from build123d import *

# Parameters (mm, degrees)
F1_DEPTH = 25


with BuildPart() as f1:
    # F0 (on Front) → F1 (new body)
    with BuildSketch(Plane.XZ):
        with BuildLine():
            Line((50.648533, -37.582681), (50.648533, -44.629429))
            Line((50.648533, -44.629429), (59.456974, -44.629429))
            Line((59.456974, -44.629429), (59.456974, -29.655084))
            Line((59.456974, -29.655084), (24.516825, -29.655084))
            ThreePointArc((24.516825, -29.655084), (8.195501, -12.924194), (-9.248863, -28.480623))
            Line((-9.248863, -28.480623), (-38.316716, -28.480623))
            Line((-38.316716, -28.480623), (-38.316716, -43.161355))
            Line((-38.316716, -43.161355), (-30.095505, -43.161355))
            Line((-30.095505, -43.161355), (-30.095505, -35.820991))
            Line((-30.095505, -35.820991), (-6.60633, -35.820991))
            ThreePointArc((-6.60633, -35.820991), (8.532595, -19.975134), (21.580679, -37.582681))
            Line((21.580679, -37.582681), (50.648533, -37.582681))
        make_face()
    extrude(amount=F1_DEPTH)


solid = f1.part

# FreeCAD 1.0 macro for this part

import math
import FreeCAD as App
import Part
import Sketcher

V = App.Vector

doc = App.newDocument("Part")
body = doc.addObject("PartDesign::Body", "Body")

# Sketch on XZ plane
sketch1 = body.newObject("Sketcher::SketchObject", "Sketch")
sketch1.AttachmentSupport = (doc.getObject("XZ_Plane"), [""])
sketch1.MapMode = "FlatFace"
sketch1.addGeometry(Part.LineSegment(V(51, -38, 0), V(51, -45, 0)), False)
sketch1.addGeometry(Part.LineSegment(V(51, -45, 0), V(59, -45, 0)), False)
sketch1.addGeometry(Part.LineSegment(V(59, -45, 0), V(59, -30, 0)), False)
sketch1.addGeometry(Part.LineSegment(V(59, -30, 0), V(25, -30, 0)), False)
sketch1.addGeometry(Part.ArcOfCircle(Part.Circle(V(8, -30, 0), V(0, 0, 1), 17), math.radians(1), math.radians(175)), False)
sketch1.addGeometry(Part.LineSegment(V(-9, -28, 0), V(-38, -28, 0)), False)
sketch1.addGeometry(Part.LineSegment(V(-38, -28, 0), V(-38, -43, 0)), False)
sketch1.addGeometry(Part.LineSegment(V(-38, -43, 0), V(-30, -43, 0)), False)
sketch1.addGeometry(Part.LineSegment(V(-30, -43, 0), V(-30, -36, 0)), False)
sketch1.addGeometry(Part.LineSegment(V(-30, -36, 0), V(-7, -36, 0)), False)
sketch1.addGeometry(Part.ArcOfCircle(Part.Circle(V(8, -34, 0), V(0, 0, 1), 14), math.radians(-13), math.radians(186)), False)
sketch1.addGeometry(Part.LineSegment(V(22, -38, 0), V(51, -38, 0)), False)
sketch1.addConstraint(Sketcher.Constraint("Coincident", 0, 2, 1, 1))
sketch1.addConstraint(Sketcher.Constraint("Coincident", 1, 2, 2, 1))
sketch1.addConstraint(Sketcher.Constraint("Coincident", 2, 2, 3, 1))
sketch1.addConstraint(Sketcher.Constraint("Coincident", 3, 2, 4, 1))
sketch1.addConstraint(Sketcher.Constraint("Coincident", 4, 2, 5, 1))
sketch1.addConstraint(Sketcher.Constraint("Coincident", 5, 2, 6, 1))
sketch1.addConstraint(Sketcher.Constraint("Coincident", 6, 2, 7, 1))
sketch1.addConstraint(Sketcher.Constraint("Coincident", 7, 2, 8, 1))
sketch1.addConstraint(Sketcher.Constraint("Coincident", 8, 2, 9, 1))
sketch1.addConstraint(Sketcher.Constraint("Coincident", 9, 2, 10, 2))
sketch1.addConstraint(Sketcher.Constraint("Coincident", 10, 1, 11, 1))
sketch1.addConstraint(Sketcher.Constraint("Coincident", 11, 2, 0, 1))
sketch1.addConstraint(Sketcher.Constraint("Vertical", 0))
sketch1.addConstraint(Sketcher.Constraint("Horizontal", 1))
sketch1.addConstraint(Sketcher.Constraint("Vertical", 2))
sketch1.addConstraint(Sketcher.Constraint("Horizontal", 3))
sketch1.addConstraint(Sketcher.Constraint("Horizontal", 5))
sketch1.addConstraint(Sketcher.Constraint("Vertical", 6))
sketch1.addConstraint(Sketcher.Constraint("Horizontal", 7))
sketch1.addConstraint(Sketcher.Constraint("Vertical", 8))
sketch1.addConstraint(Sketcher.Constraint("Horizontal", 9))
sketch1.addConstraint(Sketcher.Constraint("Horizontal", 11))
sketch1.addConstraint(Sketcher.Constraint("Equal", 5, 11))
sketch1.addConstraint(Sketcher.Constraint("Radius", 4, 16.909987))
sketch1.addConstraint(Sketcher.Constraint("Radius", 10, 14.328674))
sketch1.addConstraint(Sketcher.Constraint("DistanceX", 1, 1, 1, 2, 8.808441))
sketch1.addConstraint(Sketcher.Constraint("DistanceX", 3, 2, 3, 1, 34.940149))
sketch1.addConstraint(Sketcher.Constraint("DistanceX", 7, 1, 7, 2, 8.221211))
sketch1.addConstraint(Sketcher.Constraint("DistanceY", 0, 2, 0, 1, 7.046748))
sketch1.addConstraint(Sketcher.Constraint("DistanceY", 6, 2, 6, 1, 14.680732))
sketch1.addConstraint(Sketcher.Constraint("DistanceX", 7, 2, 10, 3, 37.7343))
sketch1.addConstraint(Sketcher.Constraint("DistanceX", 5, 2, 5, 1, 29.067853))
sketch1.addConstraint(Sketcher.Constraint("DistanceX", 9, 1, 9, 2, 23.489175))
sketch1.addConstraint(Sketcher.Constraint("DistanceY", 2, 1, 2, 2, 14.974345))
sketch1.addConstraint(Sketcher.Constraint("DistanceY", 8, 1, 8, 2, 7.340364))
sketch1.addConstraint(Sketcher.Constraint("DistanceX", -1, 1, 4, 3, 7.607682))
sketch1.addConstraint(Sketcher.Constraint("DistanceY", 4, 3, -1, 1, 29.823961))
sketch1.addConstraint(Sketcher.Constraint("DistanceY", 0, 2, -1, 1, 44.629429))
pad1 = body.newObject("PartDesign::Pad", "Pad")
pad1.Profile = sketch1
pad1.Length = 25

doc.recompute()
